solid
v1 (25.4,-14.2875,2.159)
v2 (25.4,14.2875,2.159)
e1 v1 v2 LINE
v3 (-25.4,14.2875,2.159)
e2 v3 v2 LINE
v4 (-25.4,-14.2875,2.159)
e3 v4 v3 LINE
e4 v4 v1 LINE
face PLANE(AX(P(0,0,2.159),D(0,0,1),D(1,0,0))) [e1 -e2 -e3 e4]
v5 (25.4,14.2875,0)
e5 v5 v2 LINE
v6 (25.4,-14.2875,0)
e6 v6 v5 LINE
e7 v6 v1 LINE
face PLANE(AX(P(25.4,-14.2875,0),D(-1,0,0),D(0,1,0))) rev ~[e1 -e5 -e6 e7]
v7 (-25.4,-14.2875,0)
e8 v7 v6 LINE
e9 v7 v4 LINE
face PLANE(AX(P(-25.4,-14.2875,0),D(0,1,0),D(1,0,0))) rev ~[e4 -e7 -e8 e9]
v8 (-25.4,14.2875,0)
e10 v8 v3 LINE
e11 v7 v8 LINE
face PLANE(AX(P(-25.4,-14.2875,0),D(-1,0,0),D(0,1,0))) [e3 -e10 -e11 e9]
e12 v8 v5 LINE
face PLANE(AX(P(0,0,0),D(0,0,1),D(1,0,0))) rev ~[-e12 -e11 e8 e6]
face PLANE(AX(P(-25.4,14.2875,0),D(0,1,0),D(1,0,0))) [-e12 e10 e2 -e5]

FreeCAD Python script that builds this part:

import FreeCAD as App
import Part
import Sketcher
from FreeCAD import Vector
Q = App.Units.Quantity


def add_polygon(sketch, points):
    """Adds a closed chain of lines whose ends are joined by coincident constraints."""
    first, n = sketch.GeometryCount, len(points)
    for a, b in zip(points, points[1:] + points[:1]):
        sketch.addGeometry(Part.LineSegment(App.Vector(*a, 0), App.Vector(*b, 0)), False)
    for i in range(n):
        sketch.addConstraint(Sketcher.Constraint("Coincident", first + i, 2, first + (i + 1) % n, 1))

doc = App.newDocument("Part")
body = doc.addObject("PartDesign::Body", "Body")

sketch1 = body.newObject("Sketcher::SketchObject", "Sketch")
sketch1.AttachmentSupport = (doc.getObject("XY_Plane"), [""])
sketch1.MapMode = "FlatFace"
add_polygon(sketch1, [(-25, 14), (-25, -14), (25, -14), (25, 14)])
sketch1.addConstraint([
    Sketcher.Constraint("Vertical", 0),
    Sketcher.Constraint("Horizontal", 1),
    Sketcher.Constraint("Vertical", 2),
    Sketcher.Constraint("Horizontal", 3),
    Sketcher.Constraint("Symmetric", 0, 2, 2, 2, -1, 1),
    Sketcher.Constraint("DistanceX", 1, 1, 1, 2, Q("2 in")),
    Sketcher.Constraint("DistanceY", 0, 2, 0, 1, Q("1.125 in")),
])
pad1 = body.newObject("PartDesign::Pad", "Pad")
pad1.Profile = sketch1
pad1.Length = Q("0.085 in")

doc.recompute()
